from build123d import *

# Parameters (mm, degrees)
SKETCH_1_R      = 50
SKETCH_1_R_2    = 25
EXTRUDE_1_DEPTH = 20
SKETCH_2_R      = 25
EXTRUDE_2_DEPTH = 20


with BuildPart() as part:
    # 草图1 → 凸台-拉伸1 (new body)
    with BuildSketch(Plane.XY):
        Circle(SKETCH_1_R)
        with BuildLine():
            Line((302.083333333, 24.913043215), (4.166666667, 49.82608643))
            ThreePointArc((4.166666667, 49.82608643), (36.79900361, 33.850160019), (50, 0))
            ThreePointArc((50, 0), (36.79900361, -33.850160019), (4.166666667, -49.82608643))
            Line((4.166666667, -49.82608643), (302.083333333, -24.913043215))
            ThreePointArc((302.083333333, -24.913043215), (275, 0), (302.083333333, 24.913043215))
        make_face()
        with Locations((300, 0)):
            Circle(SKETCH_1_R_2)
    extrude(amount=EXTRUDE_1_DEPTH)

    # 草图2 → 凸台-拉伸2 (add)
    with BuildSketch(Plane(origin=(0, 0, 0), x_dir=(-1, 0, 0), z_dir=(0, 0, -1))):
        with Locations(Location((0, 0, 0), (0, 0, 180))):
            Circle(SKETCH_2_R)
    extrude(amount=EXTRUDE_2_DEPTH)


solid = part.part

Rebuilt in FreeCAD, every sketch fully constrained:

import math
import FreeCAD as App
import Part
import Sketcher

V = App.Vector

doc = App.newDocument("Part")
params = doc.addObject("Spreadsheet::Sheet", "Params")
for row, (alias, value) in enumerate([
    ("sketch1_radius", "50 mm"),
    ("sketch1_radius2", "25 mm"),
    ("pad1_length", "20 mm"),
    ("sketch2_diameter", "50 mm"),
    ("pad2_length", "20 mm"),
], start=1):
    params.set(f"A{row}", alias)
    params.set(f"B{row}", "=" + value)
    params.setAlias(f"B{row}", alias)

body = doc.addObject("PartDesign::Body", "Body")

# Sketch on XY plane
sketch1 = body.newObject("Sketcher::SketchObject", "Sketch")
sketch1.AttachmentSupport = (doc.getObject("XY_Plane"), [""])
sketch1.MapMode = "FlatFace"
sketch1.addGeometry([
    Part.ArcOfCircle(Part.Circle(V(0, 0, 0), V(0, 0, 1), 50), math.radians(85.219808), math.radians(274.780192)),
    Part.LineSegment(V(4.166667, -49.826086, 0), V(302.083333, -24.913043, 0)),
    Part.ArcOfCircle(Part.Circle(V(300, 0, 0), V(0, 0, 1), 25), math.radians(-85.219808), math.radians(85.219808)),
    Part.LineSegment(V(302.083333, 24.913043, 0), V(4.166667, 49.826086, 0)),
], False)
sketch1.addConstraint([
    Sketcher.Constraint("Tangent", 0, 2, 1, 1),
    Sketcher.Constraint("Tangent", 1, 2, 2, 1),
    Sketcher.Constraint("Tangent", 2, 2, 3, 1),
    Sketcher.Constraint("Tangent", 3, 2, 0, 1),
    Sketcher.Constraint("Coincident", 0, 3, -1, 1),
    Sketcher.Constraint("PointOnObject", 2, 3, -1),
    Sketcher.Constraint("Radius", 0, 50.0),
    Sketcher.Constraint("Radius", 2, 25.0),
    Sketcher.Constraint("DistanceX", -1, 1, 2, 3, 300.0),
])
sketch1.setExpression("Constraints[6]", "Params.sketch1_radius")
sketch1.setExpression("Constraints[7]", "Params.sketch1_radius2")
pad1 = body.newObject("PartDesign::Pad", "Pad")
pad1.Profile = sketch1
pad1.setExpression("Length", "Params.pad1_length")

# Sketch on XY plane
sketch2 = body.newObject("Sketcher::SketchObject", "Sketch001")
sketch2.AttachmentSupport = (doc.getObject("XY_Plane"), [""])
sketch2.MapMode = "FlatFace"
sketch2.addGeometry(Part.Circle(V(0, 0, 0), V(0, 0, 1), 25), False)
sketch2.addConstraint([
    Sketcher.Constraint("Coincident", 0, 3, -1, 1),
    Sketcher.Constraint("Diameter", 0, 50.0),
])
sketch2.setExpression("Constraints[1]", "Params.sketch2_diameter")
pad2 = body.newObject("PartDesign::Pad", "Pad001")
pad2.Profile = sketch2
pad2.setExpression("Length", "Params.pad2_length")
pad2.Reversed = True

doc.recompute()
